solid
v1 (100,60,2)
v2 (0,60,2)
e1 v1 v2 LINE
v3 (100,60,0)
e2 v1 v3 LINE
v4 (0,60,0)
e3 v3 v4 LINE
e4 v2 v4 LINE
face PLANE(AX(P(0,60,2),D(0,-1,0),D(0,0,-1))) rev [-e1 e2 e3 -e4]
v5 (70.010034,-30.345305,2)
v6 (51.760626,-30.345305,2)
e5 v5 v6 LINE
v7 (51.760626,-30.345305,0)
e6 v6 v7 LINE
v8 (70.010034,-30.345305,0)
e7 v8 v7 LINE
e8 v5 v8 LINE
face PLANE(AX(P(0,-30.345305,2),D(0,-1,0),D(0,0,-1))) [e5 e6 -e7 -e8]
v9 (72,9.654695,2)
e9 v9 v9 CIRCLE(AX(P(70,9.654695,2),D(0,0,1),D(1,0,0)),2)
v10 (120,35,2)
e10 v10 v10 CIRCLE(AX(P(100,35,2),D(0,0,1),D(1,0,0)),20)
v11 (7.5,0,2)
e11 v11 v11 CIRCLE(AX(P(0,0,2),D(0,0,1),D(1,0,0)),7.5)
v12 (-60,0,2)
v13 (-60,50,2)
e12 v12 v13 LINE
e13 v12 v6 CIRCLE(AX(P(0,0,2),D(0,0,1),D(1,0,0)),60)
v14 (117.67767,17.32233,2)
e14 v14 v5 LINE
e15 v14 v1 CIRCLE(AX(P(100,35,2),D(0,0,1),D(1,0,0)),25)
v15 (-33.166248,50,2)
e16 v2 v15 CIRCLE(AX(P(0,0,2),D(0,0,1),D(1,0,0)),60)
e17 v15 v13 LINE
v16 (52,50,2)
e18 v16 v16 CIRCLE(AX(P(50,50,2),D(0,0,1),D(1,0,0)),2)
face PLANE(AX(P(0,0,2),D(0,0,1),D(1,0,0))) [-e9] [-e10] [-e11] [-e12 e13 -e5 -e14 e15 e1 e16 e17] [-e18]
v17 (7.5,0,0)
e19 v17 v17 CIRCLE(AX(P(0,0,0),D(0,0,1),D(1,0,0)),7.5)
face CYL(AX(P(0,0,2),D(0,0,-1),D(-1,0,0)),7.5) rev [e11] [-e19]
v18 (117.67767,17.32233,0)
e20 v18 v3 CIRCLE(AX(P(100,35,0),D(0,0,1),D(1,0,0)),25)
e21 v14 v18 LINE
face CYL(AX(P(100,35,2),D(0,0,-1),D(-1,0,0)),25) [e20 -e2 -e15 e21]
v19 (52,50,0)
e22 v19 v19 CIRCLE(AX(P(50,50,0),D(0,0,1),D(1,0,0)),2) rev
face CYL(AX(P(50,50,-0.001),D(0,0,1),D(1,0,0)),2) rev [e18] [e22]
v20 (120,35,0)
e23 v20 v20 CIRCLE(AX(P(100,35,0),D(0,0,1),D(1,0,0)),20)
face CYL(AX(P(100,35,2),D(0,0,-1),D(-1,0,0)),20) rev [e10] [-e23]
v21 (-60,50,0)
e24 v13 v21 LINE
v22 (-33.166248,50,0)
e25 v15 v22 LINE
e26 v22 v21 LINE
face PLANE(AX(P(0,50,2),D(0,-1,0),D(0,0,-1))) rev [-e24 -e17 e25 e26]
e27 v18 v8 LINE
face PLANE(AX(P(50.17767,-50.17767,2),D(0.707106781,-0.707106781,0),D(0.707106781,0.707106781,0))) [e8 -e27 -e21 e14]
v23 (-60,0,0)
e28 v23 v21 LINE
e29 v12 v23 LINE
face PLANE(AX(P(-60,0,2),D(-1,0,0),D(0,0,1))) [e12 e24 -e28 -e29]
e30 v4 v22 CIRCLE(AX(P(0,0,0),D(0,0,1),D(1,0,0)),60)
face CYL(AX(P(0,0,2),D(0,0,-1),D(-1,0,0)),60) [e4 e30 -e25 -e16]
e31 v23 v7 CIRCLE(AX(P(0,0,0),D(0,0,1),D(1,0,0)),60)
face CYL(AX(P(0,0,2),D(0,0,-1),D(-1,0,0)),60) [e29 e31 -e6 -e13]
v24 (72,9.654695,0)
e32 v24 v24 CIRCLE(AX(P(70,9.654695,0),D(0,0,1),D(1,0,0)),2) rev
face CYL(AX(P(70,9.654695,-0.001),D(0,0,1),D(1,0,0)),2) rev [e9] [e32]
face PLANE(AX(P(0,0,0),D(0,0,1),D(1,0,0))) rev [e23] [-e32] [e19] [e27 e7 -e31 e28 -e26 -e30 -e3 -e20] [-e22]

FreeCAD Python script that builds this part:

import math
import FreeCAD as App
import Part
import Sketcher
from FreeCAD import Vector
Q = App.Units.Quantity

doc = App.newDocument("Part")
params = doc.addObject("Spreadsheet::Sheet", "Params")
for row, (alias, value) in enumerate([
    ("sketch1_diameter", "40 mm"),
    ("sketch1_diameter2", "15 mm"),
    ("sketch1_radius", "60 mm"),
    ("sketch1_radius2", "25 mm"),
    ("sketch1_width", "100 mm"),
    ("pad1_length", "2 mm"),
    ("sketch2_diameter", "4 mm"),
    ("sketch3_diameter", "4 mm"),
], start=1):
    params.set(f"A{row}", alias)
    params.set(f"B{row}", "=" + value)
    params.setAlias(f"B{row}", alias)

body = doc.addObject("PartDesign::Body", "Body")

# Sketch on XY plane
sketch1 = body.newObject("Sketcher::SketchObject", "Sketch")
sketch1.AttachmentSupport = (doc.getObject("XY_Plane"), [""])
sketch1.MapMode = "FlatFace"
sketch1.addGeometry([
    Part.LineSegment(Vector(-33, 50, 0), Vector(-60, 50, 0)),  # 0
    Part.LineSegment(Vector(-60, 50, 0), Vector(-60, 0, 0)),  # 1
    Part.ArcOfCircle(Part.Circle(Vector(0, 0, 0), Vector(0, 0, 1), 60), math.radians(180), math.radians(330)),  # 2
    Part.LineSegment(Vector(52, -30, 0), Vector(70, -30, 0)),  # 3
    Part.LineSegment(Vector(70, -30, 0), Vector(118, 17, 0)),  # 4
    Part.ArcOfCircle(Part.Circle(Vector(100, 35, 0), Vector(0, 0, 1), 25), math.radians(-45), math.radians(90)),  # 5
    Part.LineSegment(Vector(100, 60, 0), Vector(0, 60, 0)),  # 6
    Part.ArcOfCircle(Part.Circle(Vector(0, 0, 0), Vector(0, 0, 1), 60), math.radians(90), math.radians(124)),  # 7
    Part.Circle(Vector(100, 35, 0), Vector(0, 0, 1), 20),  # 8
    Part.Circle(Vector(0, 0, 0), Vector(0, 0, 1), 8),  # 9
], False)
sketch1.addConstraint([
    Sketcher.Constraint("Coincident", 0, 2, 1, 1),
    Sketcher.Constraint("Tangent", 1, 2, 2, 1),
    Sketcher.Constraint("Coincident", 2, 2, 3, 1),
    Sketcher.Constraint("Coincident", 3, 2, 4, 1),
    Sketcher.Constraint("Tangent", 4, 2, 5, 1),
    Sketcher.Constraint("Tangent", 5, 2, 6, 1),
    Sketcher.Constraint("Tangent", 6, 2, 7, 1),
    Sketcher.Constraint("Coincident", 7, 2, 0, 1),
    Sketcher.Constraint("Horizontal", 0),
    Sketcher.Constraint("Vertical", 1),
    Sketcher.Constraint("Horizontal", 3),
    Sketcher.Constraint("Horizontal", 6),
    Sketcher.Constraint("Coincident", 2, 3, -1, 1),
    Sketcher.Constraint("Coincident", 7, 3, -1, 1),
    Sketcher.Constraint("Coincident", 9, 3, -1, 1),
    Sketcher.Constraint("Coincident", 8, 3, 5, 3),
    Sketcher.Constraint("Equal", 2, 7),
    Sketcher.Constraint("Diameter", 8, 40.0),
    Sketcher.Constraint("Diameter", 9, 15.0),
    Sketcher.Constraint("Radius", 2, 60.0),
    Sketcher.Constraint("Radius", 5, 25.0),
    Sketcher.Constraint("DistanceX", 6, 2, 6, 1, 100.0),
    Sketcher.Constraint("DistanceY", 1, 2, 1, 1, 50.0),
    Sketcher.Constraint("Angle", 4, Q("45 deg")),
    Sketcher.Constraint("DistanceX", 3, 1, 3, 2, 18.249407),
])
sketch1.setExpression("Constraints[17]", "Params.sketch1_diameter")
sketch1.setExpression("Constraints[18]", "Params.sketch1_diameter2")
sketch1.setExpression("Constraints[19]", "Params.sketch1_radius")
sketch1.setExpression("Constraints[20]", "Params.sketch1_radius2")
sketch1.setExpression("Constraints[21]", "Params.sketch1_width")
pad1 = body.newObject("PartDesign::Pad", "Pad")
pad1.Profile = sketch1
pad1.setExpression("Length", "Params.pad1_length")

# Sketch on XY plane
sketch2 = body.newObject("Sketcher::SketchObject", "Sketch001")
sketch2.AttachmentSupport = (doc.getObject("XY_Plane"), [""])
sketch2.MapMode = "FlatFace"
sketch2.AttachmentOffset = App.Placement(Vector(0, 0, 2), App.Rotation())
sketch2.addGeometry(Part.Circle(Vector(50, 50, 0), Vector(0, 0, 1), 2), False)
sketch2.addConstraint([
    Sketcher.Constraint("Diameter", 0, 4.0),
    Sketcher.Constraint("DistanceX", -1, 1, 0, 3, 50.0),
    Sketcher.Constraint("DistanceY", -1, 1, 0, 3, 50.0),
])
sketch2.setExpression("Constraints[0]", "Params.sketch2_diameter")
pocket1 = body.newObject("PartDesign::Pocket", "Pocket")
pocket1.Profile = sketch2
pocket1.Type = "UpToFirst"

# Sketch on XY plane
sketch3 = body.newObject("Sketcher::SketchObject", "Sketch002")
sketch3.AttachmentSupport = (doc.getObject("XY_Plane"), [""])
sketch3.MapMode = "FlatFace"
sketch3.AttachmentOffset = App.Placement(Vector(0, 0, 2), App.Rotation())
sketch3.addGeometry(Part.Circle(Vector(70, 9.7, 0), Vector(0, 0, 1), 2), False)
sketch3.addConstraint([
    Sketcher.Constraint("Diameter", 0, 4.0),
    Sketcher.Constraint("DistanceX", -1, 1, 0, 3, 70.0),
    Sketcher.Constraint("DistanceY", -1, 1, 0, 3, 9.654695),
])
sketch3.setExpression("Constraints[0]", "Params.sketch3_diameter")
pocket2 = body.newObject("PartDesign::Pocket", "Pocket001")
pocket2.Profile = sketch3
pocket2.Type = "UpToFirst"

doc.recompute()
